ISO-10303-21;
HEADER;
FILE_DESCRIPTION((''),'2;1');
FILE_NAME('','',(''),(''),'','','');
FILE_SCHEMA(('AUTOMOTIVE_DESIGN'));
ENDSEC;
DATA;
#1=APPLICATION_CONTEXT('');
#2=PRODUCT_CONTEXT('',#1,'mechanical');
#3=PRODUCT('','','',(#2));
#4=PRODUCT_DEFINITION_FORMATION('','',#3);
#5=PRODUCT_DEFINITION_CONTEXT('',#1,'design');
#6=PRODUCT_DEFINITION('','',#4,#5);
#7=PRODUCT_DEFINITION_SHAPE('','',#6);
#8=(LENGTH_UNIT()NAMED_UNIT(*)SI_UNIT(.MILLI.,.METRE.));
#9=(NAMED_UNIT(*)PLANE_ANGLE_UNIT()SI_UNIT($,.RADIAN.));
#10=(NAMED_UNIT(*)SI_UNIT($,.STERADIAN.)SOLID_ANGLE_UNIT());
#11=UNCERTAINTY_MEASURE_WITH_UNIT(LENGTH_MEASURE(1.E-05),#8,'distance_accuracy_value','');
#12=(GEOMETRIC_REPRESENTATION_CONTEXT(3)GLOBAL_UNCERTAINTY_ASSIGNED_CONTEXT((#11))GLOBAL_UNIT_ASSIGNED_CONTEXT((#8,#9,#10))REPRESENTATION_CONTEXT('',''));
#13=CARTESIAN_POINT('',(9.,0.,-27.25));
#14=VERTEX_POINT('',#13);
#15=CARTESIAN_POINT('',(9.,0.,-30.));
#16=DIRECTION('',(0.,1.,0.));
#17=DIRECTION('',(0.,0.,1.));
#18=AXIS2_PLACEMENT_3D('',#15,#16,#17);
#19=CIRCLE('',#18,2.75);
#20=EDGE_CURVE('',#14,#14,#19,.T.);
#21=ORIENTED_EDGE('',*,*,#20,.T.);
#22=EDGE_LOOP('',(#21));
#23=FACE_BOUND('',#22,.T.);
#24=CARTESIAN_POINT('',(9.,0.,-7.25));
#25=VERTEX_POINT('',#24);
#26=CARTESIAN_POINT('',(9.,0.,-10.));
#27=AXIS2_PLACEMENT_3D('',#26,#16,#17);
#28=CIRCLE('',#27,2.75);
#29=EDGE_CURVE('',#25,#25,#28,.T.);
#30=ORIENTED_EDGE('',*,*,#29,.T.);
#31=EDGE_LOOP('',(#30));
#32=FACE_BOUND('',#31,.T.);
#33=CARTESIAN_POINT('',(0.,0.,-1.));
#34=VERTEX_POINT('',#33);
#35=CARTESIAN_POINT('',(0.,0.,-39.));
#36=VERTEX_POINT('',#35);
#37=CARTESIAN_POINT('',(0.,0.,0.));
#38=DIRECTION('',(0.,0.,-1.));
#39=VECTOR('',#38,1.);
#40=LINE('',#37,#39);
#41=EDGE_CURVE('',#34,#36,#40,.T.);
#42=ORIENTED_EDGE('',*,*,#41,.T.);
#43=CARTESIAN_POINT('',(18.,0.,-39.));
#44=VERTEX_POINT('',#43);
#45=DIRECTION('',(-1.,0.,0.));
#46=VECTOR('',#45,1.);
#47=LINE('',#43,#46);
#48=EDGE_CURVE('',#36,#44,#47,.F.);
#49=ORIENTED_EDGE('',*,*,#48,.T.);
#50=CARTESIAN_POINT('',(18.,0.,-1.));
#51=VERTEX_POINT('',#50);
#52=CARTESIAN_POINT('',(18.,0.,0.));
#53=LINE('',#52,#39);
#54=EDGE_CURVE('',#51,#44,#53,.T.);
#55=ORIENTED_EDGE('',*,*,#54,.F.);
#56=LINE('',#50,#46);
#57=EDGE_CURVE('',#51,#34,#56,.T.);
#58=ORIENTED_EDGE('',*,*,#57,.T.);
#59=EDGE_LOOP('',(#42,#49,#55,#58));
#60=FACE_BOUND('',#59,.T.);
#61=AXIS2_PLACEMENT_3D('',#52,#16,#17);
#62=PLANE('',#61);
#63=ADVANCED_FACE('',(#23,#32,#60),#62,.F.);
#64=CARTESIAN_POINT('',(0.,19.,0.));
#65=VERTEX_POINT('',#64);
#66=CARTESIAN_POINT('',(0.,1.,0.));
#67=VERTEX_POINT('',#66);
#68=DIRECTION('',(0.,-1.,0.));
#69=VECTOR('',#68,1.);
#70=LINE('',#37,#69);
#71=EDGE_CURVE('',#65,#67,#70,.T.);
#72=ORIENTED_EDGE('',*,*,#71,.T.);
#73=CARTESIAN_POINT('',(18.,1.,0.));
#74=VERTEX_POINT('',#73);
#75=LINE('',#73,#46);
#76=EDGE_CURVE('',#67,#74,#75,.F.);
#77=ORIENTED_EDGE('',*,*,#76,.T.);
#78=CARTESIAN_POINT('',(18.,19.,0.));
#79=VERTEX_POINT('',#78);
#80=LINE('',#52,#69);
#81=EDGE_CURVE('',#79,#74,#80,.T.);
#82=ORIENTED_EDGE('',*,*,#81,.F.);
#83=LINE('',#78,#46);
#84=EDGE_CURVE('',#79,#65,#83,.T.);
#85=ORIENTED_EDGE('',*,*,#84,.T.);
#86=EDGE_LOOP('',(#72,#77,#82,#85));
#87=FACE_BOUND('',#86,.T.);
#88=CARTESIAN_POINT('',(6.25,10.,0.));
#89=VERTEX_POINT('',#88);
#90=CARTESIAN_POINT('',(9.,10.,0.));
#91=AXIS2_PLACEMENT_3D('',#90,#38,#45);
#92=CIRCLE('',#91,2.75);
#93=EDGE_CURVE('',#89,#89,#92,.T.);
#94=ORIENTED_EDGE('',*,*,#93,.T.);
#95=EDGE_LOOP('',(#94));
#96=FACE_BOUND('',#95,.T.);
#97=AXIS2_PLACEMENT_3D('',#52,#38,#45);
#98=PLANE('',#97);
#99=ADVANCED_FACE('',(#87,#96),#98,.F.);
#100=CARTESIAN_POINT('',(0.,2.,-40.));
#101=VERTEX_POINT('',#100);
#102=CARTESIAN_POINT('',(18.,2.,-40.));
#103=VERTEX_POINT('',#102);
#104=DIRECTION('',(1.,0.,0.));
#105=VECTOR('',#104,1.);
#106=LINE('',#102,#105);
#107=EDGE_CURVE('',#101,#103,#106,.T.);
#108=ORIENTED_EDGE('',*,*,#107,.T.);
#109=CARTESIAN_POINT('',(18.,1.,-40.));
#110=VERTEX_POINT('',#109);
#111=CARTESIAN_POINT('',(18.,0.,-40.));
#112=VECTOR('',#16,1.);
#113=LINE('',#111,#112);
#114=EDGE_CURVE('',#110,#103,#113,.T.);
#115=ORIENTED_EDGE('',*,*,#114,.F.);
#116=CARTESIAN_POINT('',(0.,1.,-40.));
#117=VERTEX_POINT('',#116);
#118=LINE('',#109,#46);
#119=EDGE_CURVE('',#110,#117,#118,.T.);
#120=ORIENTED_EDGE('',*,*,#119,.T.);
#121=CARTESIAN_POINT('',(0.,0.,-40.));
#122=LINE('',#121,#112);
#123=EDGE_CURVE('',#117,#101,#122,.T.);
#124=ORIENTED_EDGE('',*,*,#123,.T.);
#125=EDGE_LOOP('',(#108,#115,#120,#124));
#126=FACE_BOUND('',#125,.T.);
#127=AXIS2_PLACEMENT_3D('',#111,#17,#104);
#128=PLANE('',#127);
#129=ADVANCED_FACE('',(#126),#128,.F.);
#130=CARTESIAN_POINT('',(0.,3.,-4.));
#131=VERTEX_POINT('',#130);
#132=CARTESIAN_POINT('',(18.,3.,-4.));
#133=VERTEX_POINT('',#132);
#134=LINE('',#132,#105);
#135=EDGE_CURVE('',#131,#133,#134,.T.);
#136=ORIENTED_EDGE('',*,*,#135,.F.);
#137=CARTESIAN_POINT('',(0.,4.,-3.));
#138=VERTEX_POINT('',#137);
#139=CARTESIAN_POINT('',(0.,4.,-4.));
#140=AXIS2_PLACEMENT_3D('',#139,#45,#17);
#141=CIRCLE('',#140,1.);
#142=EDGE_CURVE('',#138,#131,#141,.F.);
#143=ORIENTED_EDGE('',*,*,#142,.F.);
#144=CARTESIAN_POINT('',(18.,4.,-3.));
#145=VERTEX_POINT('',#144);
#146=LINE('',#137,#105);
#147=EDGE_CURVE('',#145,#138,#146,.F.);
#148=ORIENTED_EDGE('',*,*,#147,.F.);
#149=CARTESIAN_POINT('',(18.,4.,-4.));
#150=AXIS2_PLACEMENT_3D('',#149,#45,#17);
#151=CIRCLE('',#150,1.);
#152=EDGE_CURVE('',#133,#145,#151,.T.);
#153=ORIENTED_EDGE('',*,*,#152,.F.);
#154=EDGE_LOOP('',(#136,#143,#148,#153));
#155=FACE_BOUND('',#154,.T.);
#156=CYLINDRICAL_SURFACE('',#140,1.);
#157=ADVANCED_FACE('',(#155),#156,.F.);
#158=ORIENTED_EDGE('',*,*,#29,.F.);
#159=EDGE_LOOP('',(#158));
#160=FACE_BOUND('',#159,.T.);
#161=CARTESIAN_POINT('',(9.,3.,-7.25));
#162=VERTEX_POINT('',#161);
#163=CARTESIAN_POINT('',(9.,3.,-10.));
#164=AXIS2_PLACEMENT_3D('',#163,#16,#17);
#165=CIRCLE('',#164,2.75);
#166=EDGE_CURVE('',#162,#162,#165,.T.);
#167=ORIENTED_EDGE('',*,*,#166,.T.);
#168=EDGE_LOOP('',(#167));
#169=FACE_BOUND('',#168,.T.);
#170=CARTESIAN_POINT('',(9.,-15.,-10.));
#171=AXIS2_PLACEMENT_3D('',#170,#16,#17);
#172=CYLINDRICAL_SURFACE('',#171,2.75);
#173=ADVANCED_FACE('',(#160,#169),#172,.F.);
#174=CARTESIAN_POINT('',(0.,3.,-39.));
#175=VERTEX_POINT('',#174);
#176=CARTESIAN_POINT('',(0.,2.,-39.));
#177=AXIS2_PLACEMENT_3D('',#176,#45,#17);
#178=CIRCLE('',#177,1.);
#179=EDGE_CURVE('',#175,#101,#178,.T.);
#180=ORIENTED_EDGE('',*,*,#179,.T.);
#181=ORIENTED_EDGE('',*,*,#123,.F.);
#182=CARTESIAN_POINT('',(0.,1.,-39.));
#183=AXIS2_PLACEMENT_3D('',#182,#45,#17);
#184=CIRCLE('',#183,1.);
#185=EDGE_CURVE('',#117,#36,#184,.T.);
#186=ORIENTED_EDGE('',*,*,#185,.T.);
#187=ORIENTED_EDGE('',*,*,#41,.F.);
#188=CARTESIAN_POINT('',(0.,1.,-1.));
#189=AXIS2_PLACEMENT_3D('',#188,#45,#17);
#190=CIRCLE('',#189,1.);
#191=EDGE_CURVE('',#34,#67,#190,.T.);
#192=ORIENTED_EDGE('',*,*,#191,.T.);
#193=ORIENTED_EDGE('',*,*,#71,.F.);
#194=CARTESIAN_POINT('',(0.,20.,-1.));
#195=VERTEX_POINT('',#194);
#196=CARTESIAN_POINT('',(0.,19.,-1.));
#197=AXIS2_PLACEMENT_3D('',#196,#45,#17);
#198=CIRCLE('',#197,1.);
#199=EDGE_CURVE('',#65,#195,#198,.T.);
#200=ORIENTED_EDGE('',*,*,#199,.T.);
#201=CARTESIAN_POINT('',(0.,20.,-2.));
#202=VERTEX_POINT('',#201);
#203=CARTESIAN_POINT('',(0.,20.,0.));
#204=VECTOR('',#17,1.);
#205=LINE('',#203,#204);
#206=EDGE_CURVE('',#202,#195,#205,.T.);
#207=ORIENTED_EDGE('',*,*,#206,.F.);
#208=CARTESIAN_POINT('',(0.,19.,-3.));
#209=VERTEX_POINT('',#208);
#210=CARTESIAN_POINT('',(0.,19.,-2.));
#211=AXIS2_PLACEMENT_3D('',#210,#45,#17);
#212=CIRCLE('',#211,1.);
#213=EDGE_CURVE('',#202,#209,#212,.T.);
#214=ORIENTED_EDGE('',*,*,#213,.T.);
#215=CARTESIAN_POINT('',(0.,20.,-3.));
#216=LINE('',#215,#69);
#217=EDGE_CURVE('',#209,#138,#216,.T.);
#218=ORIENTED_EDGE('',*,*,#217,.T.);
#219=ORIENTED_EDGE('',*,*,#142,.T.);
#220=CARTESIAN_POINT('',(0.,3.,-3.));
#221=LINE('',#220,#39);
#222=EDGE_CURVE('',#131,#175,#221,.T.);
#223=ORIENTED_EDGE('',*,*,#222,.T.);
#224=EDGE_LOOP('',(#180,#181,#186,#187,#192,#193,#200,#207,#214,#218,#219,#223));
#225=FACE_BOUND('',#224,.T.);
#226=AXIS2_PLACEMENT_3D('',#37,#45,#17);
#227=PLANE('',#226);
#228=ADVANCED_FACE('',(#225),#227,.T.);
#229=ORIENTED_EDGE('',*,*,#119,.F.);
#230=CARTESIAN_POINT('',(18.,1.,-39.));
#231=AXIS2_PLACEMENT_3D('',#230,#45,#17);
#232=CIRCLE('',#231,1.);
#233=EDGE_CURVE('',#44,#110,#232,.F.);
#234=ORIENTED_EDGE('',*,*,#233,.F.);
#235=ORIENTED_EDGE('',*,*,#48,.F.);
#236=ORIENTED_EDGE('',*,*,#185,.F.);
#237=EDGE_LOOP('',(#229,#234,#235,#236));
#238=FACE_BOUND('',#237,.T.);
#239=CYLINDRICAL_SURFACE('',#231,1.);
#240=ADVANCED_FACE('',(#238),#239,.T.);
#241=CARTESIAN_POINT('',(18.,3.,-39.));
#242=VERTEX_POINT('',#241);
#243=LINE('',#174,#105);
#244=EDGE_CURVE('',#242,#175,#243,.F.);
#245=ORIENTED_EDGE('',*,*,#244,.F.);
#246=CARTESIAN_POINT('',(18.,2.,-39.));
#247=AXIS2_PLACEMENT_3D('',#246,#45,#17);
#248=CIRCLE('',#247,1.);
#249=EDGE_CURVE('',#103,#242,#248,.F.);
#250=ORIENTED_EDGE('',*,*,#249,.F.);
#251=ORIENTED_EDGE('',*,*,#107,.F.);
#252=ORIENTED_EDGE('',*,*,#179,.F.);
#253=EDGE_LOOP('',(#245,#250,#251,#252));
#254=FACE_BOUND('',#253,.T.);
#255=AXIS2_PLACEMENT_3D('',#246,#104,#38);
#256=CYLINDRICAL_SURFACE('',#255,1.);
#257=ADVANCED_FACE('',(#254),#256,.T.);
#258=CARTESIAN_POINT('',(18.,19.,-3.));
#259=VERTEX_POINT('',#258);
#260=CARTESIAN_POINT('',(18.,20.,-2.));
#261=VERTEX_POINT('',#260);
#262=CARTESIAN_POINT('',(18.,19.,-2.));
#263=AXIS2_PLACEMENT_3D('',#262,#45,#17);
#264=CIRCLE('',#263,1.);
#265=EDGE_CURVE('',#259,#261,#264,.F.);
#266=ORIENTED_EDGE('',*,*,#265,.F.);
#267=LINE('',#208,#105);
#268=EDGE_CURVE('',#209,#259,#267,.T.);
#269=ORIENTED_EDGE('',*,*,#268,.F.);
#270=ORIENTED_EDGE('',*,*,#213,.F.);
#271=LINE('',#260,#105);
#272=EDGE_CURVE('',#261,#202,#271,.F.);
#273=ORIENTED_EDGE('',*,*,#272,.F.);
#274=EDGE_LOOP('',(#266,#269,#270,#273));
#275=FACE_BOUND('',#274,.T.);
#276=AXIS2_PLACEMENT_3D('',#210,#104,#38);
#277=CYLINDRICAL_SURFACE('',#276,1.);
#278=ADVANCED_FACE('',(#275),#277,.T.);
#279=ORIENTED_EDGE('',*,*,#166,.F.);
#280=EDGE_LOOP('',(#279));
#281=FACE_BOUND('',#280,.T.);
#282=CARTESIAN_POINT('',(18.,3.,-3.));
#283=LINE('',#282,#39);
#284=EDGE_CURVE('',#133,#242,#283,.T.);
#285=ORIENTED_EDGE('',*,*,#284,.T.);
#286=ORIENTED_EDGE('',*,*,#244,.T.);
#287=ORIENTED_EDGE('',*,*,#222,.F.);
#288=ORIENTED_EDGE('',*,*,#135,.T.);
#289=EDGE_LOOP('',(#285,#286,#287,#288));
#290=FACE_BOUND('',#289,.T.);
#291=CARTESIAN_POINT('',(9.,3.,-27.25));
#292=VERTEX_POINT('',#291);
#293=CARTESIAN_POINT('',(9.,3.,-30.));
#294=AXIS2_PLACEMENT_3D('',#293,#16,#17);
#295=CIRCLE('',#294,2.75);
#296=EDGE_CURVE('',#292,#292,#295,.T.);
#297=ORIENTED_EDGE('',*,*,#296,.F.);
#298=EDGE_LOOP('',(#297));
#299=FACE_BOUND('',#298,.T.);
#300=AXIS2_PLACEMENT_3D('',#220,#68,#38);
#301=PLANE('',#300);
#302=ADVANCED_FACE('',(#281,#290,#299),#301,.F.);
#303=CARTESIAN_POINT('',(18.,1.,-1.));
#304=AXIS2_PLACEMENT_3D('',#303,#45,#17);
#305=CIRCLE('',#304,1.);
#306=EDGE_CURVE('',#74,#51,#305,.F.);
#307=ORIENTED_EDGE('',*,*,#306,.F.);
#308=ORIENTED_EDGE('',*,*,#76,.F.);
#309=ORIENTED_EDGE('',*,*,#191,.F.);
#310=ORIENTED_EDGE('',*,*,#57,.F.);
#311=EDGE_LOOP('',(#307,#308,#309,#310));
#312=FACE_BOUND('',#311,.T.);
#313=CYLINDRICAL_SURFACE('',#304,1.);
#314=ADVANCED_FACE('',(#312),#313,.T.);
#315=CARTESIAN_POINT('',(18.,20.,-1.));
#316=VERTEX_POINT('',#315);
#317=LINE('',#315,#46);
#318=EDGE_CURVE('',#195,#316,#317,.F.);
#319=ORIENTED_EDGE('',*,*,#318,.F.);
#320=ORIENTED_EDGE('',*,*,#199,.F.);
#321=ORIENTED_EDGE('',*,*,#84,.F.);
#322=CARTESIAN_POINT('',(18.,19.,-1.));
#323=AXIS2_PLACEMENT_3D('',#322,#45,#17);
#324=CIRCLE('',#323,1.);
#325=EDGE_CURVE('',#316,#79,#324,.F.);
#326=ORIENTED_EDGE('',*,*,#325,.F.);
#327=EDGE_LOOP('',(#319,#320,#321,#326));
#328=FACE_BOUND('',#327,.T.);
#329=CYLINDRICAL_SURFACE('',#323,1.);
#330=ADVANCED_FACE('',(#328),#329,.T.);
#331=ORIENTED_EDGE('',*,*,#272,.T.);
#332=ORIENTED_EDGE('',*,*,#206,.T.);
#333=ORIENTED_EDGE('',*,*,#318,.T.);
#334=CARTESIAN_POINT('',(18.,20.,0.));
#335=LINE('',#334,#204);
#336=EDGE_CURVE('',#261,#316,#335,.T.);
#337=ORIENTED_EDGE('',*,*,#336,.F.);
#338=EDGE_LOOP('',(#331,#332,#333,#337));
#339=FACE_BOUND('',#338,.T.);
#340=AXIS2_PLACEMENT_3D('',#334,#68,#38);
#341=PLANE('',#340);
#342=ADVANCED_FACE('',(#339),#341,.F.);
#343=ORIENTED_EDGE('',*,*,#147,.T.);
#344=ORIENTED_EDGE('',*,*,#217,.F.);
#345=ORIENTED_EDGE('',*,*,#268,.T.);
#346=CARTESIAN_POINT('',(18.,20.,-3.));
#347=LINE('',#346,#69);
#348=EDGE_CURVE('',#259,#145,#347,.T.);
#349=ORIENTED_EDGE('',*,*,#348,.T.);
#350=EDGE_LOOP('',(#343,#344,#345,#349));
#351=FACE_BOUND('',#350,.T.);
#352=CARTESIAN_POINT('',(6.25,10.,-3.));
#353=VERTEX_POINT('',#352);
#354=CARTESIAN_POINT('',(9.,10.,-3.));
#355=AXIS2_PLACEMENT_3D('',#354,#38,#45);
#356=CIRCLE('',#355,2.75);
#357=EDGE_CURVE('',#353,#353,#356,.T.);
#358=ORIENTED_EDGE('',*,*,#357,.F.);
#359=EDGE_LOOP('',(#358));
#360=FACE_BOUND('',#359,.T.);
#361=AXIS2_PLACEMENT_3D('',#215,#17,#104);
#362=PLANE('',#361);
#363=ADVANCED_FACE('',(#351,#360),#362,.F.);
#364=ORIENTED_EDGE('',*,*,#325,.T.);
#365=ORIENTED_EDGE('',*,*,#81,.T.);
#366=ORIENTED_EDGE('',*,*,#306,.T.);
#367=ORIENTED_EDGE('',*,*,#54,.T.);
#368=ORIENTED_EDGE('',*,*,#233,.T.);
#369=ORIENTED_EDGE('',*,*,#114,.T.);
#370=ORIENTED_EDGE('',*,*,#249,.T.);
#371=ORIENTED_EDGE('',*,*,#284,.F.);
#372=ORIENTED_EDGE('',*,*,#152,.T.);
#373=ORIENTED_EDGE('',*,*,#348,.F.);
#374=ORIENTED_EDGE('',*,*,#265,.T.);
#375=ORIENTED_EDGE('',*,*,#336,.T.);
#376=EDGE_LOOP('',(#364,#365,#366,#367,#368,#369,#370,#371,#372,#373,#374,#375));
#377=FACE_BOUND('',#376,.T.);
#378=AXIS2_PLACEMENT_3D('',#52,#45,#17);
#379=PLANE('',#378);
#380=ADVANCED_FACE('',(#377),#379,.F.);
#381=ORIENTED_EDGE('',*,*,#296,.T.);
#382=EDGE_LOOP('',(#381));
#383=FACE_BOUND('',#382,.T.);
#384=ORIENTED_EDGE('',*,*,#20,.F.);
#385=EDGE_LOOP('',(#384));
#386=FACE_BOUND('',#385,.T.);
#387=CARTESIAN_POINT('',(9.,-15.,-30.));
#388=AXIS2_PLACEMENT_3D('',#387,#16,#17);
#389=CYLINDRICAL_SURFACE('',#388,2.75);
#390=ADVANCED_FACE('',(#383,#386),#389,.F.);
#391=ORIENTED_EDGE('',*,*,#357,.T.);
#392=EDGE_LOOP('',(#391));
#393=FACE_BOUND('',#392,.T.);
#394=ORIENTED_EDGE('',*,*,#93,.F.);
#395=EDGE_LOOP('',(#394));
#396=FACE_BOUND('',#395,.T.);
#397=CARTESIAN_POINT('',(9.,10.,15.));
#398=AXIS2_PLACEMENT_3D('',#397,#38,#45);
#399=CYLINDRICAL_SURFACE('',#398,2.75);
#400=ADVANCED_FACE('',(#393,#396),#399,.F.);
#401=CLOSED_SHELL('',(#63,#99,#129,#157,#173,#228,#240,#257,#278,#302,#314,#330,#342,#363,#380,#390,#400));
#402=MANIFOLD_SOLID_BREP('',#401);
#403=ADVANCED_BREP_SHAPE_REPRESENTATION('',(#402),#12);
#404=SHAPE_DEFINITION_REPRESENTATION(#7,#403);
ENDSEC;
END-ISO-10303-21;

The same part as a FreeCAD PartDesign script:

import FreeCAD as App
import Part
import Sketcher
from FreeCAD import Vector


def edges_at(feature, points):
    """Names of the edges that pass closest to the given points."""
    edges = feature.Shape.Edges
    near = lambda p: min(range(len(edges)), key=lambda i: edges[i].distToShape(Part.Vertex(*p))[0])
    return sorted({f"Edge{near(p) + 1}" for p in points})


def add_polygon(sketch, points):
    """Adds a closed chain of lines whose ends are joined by coincident constraints."""
    first, n = sketch.GeometryCount, len(points)
    for a, b in zip(points, points[1:] + points[:1]):
        sketch.addGeometry(Part.LineSegment(App.Vector(*a, 0), App.Vector(*b, 0)), False)
    for i in range(n):
        sketch.addConstraint(Sketcher.Constraint("Coincident", first + i, 2, first + (i + 1) % n, 1))

doc = App.newDocument("Part")
body = doc.addObject("PartDesign::Body", "Body")

# Sketch on YZ plane
sketch1 = doc.addObject("Sketcher::SketchObject", "Sketch")
body.addObject(sketch1)
sketch1.AttachmentSupport = (doc.YZ_Plane, [""])
sketch1.MapMode = "FlatFace"
add_polygon(sketch1, [(20, 0), (0, 0), (0, -40), (20, -40)])  # lines 0-3
sketch1.addConstraint([
    Sketcher.Constraint("Horizontal", 0),
    Sketcher.Constraint("Vertical", 1),
    Sketcher.Constraint("Horizontal", 2),
    Sketcher.Constraint("Vertical", 3),
    Sketcher.Constraint("Coincident", 0, 2, -1, 1),
    Sketcher.Constraint("DistanceX", 0, 2, 0, 1, 20.0),
    Sketcher.Constraint("DistanceY", 1, 2, 1, 1, 40.0),
])
pad1 = doc.addObject("PartDesign::Pad", "Pad")
body.addObject(pad1)
pad1.Profile = sketch1
pad1.Length = 18

# Sketch on YZ plane
sketch2 = doc.addObject("Sketcher::SketchObject", "Sketch001")
body.addObject(sketch2)
sketch2.AttachmentSupport = (doc.YZ_Plane, [""])
sketch2.MapMode = "FlatFace"
sketch2.AttachmentOffset = App.Placement(Vector(0, 0, 18), App.Rotation())
add_polygon(sketch2, [(20, -3), (3, -3), (3, -40), (20, -40)])  # lines 0-3
sketch2.addConstraint([
    Sketcher.Constraint("Horizontal", 0),
    Sketcher.Constraint("Vertical", 1),
    Sketcher.Constraint("Horizontal", 2),
    Sketcher.Constraint("Vertical", 3),
    Sketcher.Constraint("DistanceX", 0, 2, 0, 1, 17.0),
    Sketcher.Constraint("DistanceY", 1, 2, 1, 1, 37.0),
    Sketcher.Constraint("DistanceX", -1, 1, 0, 2, 3.0),
    Sketcher.Constraint("DistanceY", 0, 2, -1, 1, 3.0),
])
pocket1 = doc.addObject("PartDesign::Pocket", "Pocket")
body.addObject(pocket1)
pocket1.Profile = sketch2
pocket1.Length = 18

# Sketch on XY plane
sketch3 = doc.addObject("Sketcher::SketchObject", "Sketch002")
body.addObject(sketch3)
sketch3.AttachmentSupport = (doc.XY_Plane, [""])
sketch3.MapMode = "FlatFace"
sketch3.AttachmentOffset = App.Placement(Vector(0, 0, -3), App.Rotation())
sketch3.addGeometry(Part.Circle(Vector(9, 10, 0), Vector(0, 0, 1), 2.75), False)
sketch3.addConstraint([
    Sketcher.Constraint("Diameter", 0, 5.5),
    Sketcher.Constraint("DistanceX", -1, 1, 0, 3, 9.0),
    Sketcher.Constraint("DistanceY", -1, 1, 0, 3, 10.0),
])
pocket2 = doc.addObject("PartDesign::Pocket", "Pocket001")
body.addObject(pocket2)
pocket2.Profile = sketch3
pocket2.Length = 18
pocket2.Reversed = True

# Sketch on XZ plane
sketch4 = doc.addObject("Sketcher::SketchObject", "Sketch003")
body.addObject(sketch4)
sketch4.AttachmentSupport = (doc.XZ_Plane, [""])
sketch4.MapMode = "FlatFace"
sketch4.AttachmentOffset = App.Placement(Vector(0, 0, -3), App.Rotation())
sketch4.addGeometry([
    Part.Circle(Vector(9, -30, 0), Vector(0, 0, 1), 2.75),
    Part.Circle(Vector(9, -10, 0), Vector(0, 0, 1), 2.75),
], False)
sketch4.addConstraint([
    Sketcher.Constraint("Equal", 0, 1),
    Sketcher.Constraint("Vertical", 0, 3, 1, 3),
    Sketcher.Constraint("Diameter", 0, 5.5),
    Sketcher.Constraint("DistanceX", -1, 1, 0, 3, 9.0),
    Sketcher.Constraint("DistanceY", 0, 3, -1, 1, 30.0),
    Sketcher.Constraint("DistanceY", 1, 3, -1, 1, 10.0),
])
pocket3 = doc.addObject("PartDesign::Pocket", "Pocket002")
body.addObject(pocket3)
pocket3.Profile = sketch4
pocket3.Length = 18
pocket3.Reversed = True
doc.recompute()

fillet = doc.addObject("PartDesign::Fillet", "Fillet")
body.addObject(fillet)
fillet.Base = (pocket3, edges_at(pocket3, [
    (9, 20, -3),
    (9, 3, -40),
    (9, 3, -3),
    (9, 20, 0),
    (9, 0, -40),
    (9, 0, 0),
]))
fillet.Radius = 1

doc.recompute()
